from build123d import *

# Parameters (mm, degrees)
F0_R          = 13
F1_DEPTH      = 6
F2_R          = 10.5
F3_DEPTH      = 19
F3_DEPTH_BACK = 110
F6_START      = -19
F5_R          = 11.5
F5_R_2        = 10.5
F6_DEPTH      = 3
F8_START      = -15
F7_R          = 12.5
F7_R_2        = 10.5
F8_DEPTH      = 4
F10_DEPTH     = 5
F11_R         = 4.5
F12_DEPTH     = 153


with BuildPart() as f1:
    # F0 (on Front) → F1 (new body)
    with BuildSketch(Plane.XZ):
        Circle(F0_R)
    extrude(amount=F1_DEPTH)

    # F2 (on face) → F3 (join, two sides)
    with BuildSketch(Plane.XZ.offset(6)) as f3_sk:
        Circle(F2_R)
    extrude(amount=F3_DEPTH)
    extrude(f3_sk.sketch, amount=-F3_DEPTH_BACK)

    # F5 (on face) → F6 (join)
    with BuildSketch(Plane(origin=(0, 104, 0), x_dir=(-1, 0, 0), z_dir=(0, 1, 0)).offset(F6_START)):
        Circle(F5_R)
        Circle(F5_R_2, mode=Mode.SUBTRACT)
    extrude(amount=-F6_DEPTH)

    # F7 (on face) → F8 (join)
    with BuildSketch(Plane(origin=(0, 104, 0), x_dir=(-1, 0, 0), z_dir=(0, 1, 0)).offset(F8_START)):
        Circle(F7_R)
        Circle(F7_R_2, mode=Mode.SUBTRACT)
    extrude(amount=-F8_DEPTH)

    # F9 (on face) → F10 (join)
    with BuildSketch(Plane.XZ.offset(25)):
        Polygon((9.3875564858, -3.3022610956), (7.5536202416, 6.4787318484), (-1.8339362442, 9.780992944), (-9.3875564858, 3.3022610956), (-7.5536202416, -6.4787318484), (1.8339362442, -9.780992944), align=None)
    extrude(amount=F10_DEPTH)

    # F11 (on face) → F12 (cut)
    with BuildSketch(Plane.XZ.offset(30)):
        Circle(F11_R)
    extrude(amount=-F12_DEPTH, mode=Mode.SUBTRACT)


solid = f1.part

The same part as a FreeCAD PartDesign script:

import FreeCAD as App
import Part
import Sketcher
from FreeCAD import Vector
Q = App.Units.Quantity

doc = App.newDocument("Part")
params = doc.addObject("Spreadsheet::Sheet", "Params")
for row, (alias, value) in enumerate([
    ("sketch1_diameter", "26 mm"),
    ("pad1_length", "6 mm"),
    ("sketch2_diameter", "21 mm"),
    ("pad2_length", "19 mm"),
    ("pad2_length2", "110 mm"),
    ("sketch3_diameter", "23 mm"),
    ("sketch3_diameter2", "21 mm"),
    ("pad3_length", "3 mm"),
    ("sketch4_diameter", "25 mm"),
    ("sketch4_diameter2", "21 mm"),
    ("pad4_length", "4 mm"),
    ("pad5_length", "5 mm"),
    ("sketch6_diameter", "9 mm"),
    ("pocket1_length", "153 mm"),
], start=1):
    params.set(f"A{row}", alias)
    params.set(f"B{row}", "=" + value)
    params.setAlias(f"B{row}", alias)

body = doc.addObject("PartDesign::Body", "Body")

sketch1 = body.newObject("Sketcher::SketchObject", "Sketch")
sketch1.AttachmentSupport = (doc.getObject("XZ_Plane"), [""])
sketch1.MapMode = "FlatFace"
sketch1.addGeometry(Part.Circle(Vector(0, 0, 0), Vector(0, 0, 1), 13), False)
sketch1.addConstraint([
    Sketcher.Constraint("Coincident", 0, 3, -1, 1),
    Sketcher.Constraint("Diameter", 0, Q("26 mm")),
])
sketch1.setExpression("Constraints[1]", "Params.sketch1_diameter")
pad1 = body.newObject("PartDesign::Pad", "Pad")
pad1.Profile = sketch1
pad1.setExpression("Length", "Params.pad1_length")

sketch2 = body.newObject("Sketcher::SketchObject", "Sketch001")
sketch2.AttachmentSupport = (doc.getObject("XZ_Plane"), [""])
sketch2.MapMode = "FlatFace"
sketch2.AttachmentOffset = App.Placement(Vector(0, 0, 6), App.Rotation())
sketch2.addGeometry(Part.Circle(Vector(0, 0, 0), Vector(0, 0, 1), 10.5), False)
sketch2.addConstraint([
    Sketcher.Constraint("Coincident", 0, 3, -1, 1),
    Sketcher.Constraint("Diameter", 0, Q("21 mm")),
])
sketch2.setExpression("Constraints[1]", "Params.sketch2_diameter")
pad2 = body.newObject("PartDesign::Pad", "Pad001")
pad2.Profile = sketch2
pad2.Type = "TwoLengths"
pad2.setExpression("Length", "Params.pad2_length")
pad2.setExpression("Length2", "Params.pad2_length2")

sketch3 = body.newObject("Sketcher::SketchObject", "Sketch002")
sketch3.AttachmentSupport = (doc.getObject("XZ_Plane"), [""])
sketch3.MapMode = "FlatFace"
sketch3.AttachmentOffset = App.Placement(Vector(0, 0, -85), App.Rotation())
sketch3.addGeometry([
    Part.Circle(Vector(0, 0, 0), Vector(0, 0, 1), 11.5),
    Part.Circle(Vector(0, 0, 0), Vector(0, 0, 1), 10.5),
], False)
sketch3.addConstraint([
    Sketcher.Constraint("Coincident", 0, 3, -1, 1),
    Sketcher.Constraint("Coincident", 1, 3, -1, 1),
    Sketcher.Constraint("Diameter", 0, Q("23 mm")),
    Sketcher.Constraint("Diameter", 1, Q("21 mm")),
])
sketch3.setExpression("Constraints[2]", "Params.sketch3_diameter")
sketch3.setExpression("Constraints[3]", "Params.sketch3_diameter2")
pad3 = body.newObject("PartDesign::Pad", "Pad002")
pad3.Profile = sketch3
pad3.setExpression("Length", "Params.pad3_length")

sketch4 = body.newObject("Sketcher::SketchObject", "Sketch003")
sketch4.AttachmentSupport = (doc.getObject("XZ_Plane"), [""])
sketch4.MapMode = "FlatFace"
sketch4.AttachmentOffset = App.Placement(Vector(0, 0, -89), App.Rotation())
sketch4.addGeometry([
    Part.Circle(Vector(0, 0, 0), Vector(0, 0, 1), 12.5),
    Part.Circle(Vector(0, 0, 0), Vector(0, 0, 1), 10.5),
], False)
sketch4.addConstraint([
    Sketcher.Constraint("Coincident", 0, 3, -1, 1),
    Sketcher.Constraint("Coincident", 1, 3, -1, 1),
    Sketcher.Constraint("Diameter", 0, Q("25 mm")),
    Sketcher.Constraint("Diameter", 1, Q("21 mm")),
])
sketch4.setExpression("Constraints[2]", "Params.sketch4_diameter")
sketch4.setExpression("Constraints[3]", "Params.sketch4_diameter2")
pad4 = body.newObject("PartDesign::Pad", "Pad003")
pad4.Profile = sketch4
pad4.setExpression("Length", "Params.pad4_length")

sketch5 = body.newObject("Sketcher::SketchObject", "Sketch004")
sketch5.AttachmentSupport = (doc.getObject("XZ_Plane"), [""])
sketch5.MapMode = "FlatFace"
sketch5.AttachmentOffset = App.Placement(Vector(0, 0, 25), App.Rotation())
sketch5.addGeometry([
    Part.LineSegment(Vector(9.387556, -3.302261, 0), Vector(7.55362, 6.478732, 0)),
    Part.LineSegment(Vector(7.55362, 6.478732, 0), Vector(-1.833936, 9.780993, 0)),
    Part.LineSegment(Vector(-1.833936, 9.780993, 0), Vector(-9.387556, 3.302261, 0)),
    Part.LineSegment(Vector(-9.387556, 3.302261, 0), Vector(-7.55362, -6.478732, 0)),
    Part.LineSegment(Vector(-7.55362, -6.478732, 0), Vector(1.833936, -9.780993, 0)),
    Part.LineSegment(Vector(1.833936, -9.780993, 0), Vector(9.387556, -3.302261, 0)),
], False)
sketch5.addConstraint([
    Sketcher.Constraint("Coincident", 0, 2, 1, 1),
    Sketcher.Constraint("Coincident", 1, 2, 2, 1),
    Sketcher.Constraint("Coincident", 2, 2, 3, 1),
    Sketcher.Constraint("Coincident", 3, 2, 4, 1),
    Sketcher.Constraint("Coincident", 4, 2, 5, 1),
    Sketcher.Constraint("Coincident", 5, 2, 0, 1),
    Sketcher.Constraint("Symmetric", 0, 2, 3, 2, -1, 1),
    Sketcher.Constraint("Symmetric", 1, 2, 4, 2, -1, 1),
    Sketcher.Constraint("Symmetric", 2, 2, 5, 2, -1, 1),
    Sketcher.Constraint("Equal", 0, 1),
    Sketcher.Constraint("Equal", 1, 2),
    Sketcher.Constraint("Distance", 0, Q("9.951439 mm")),
    Sketcher.Constraint("DistanceX", -1, 1, 0, 2, Q("7.55362 mm")),
    Sketcher.Constraint("DistanceY", -1, 1, 0, 2, Q("6.478732 mm")),
    Sketcher.Constraint("DistanceY", -1, 1, 2, 2, Q("3.302261 mm")),
])
pad5 = body.newObject("PartDesign::Pad", "Pad004")
pad5.Profile = sketch5
pad5.setExpression("Length", "Params.pad5_length")

sketch6 = body.newObject("Sketcher::SketchObject", "Sketch005")
sketch6.AttachmentSupport = (doc.getObject("XZ_Plane"), [""])
sketch6.MapMode = "FlatFace"
sketch6.AttachmentOffset = App.Placement(Vector(0, 0, 30), App.Rotation())
sketch6.addGeometry(Part.Circle(Vector(0, 0, 0), Vector(0, 0, 1), 4.5), False)
sketch6.addConstraint([
    Sketcher.Constraint("Coincident", 0, 3, -1, 1),
    Sketcher.Constraint("Diameter", 0, Q("9 mm")),
])
sketch6.setExpression("Constraints[1]", "Params.sketch6_diameter")
pocket1 = body.newObject("PartDesign::Pocket", "Pocket")
pocket1.Profile = sketch6
pocket1.setExpression("Length", "Params.pocket1_length")

doc.recompute()
